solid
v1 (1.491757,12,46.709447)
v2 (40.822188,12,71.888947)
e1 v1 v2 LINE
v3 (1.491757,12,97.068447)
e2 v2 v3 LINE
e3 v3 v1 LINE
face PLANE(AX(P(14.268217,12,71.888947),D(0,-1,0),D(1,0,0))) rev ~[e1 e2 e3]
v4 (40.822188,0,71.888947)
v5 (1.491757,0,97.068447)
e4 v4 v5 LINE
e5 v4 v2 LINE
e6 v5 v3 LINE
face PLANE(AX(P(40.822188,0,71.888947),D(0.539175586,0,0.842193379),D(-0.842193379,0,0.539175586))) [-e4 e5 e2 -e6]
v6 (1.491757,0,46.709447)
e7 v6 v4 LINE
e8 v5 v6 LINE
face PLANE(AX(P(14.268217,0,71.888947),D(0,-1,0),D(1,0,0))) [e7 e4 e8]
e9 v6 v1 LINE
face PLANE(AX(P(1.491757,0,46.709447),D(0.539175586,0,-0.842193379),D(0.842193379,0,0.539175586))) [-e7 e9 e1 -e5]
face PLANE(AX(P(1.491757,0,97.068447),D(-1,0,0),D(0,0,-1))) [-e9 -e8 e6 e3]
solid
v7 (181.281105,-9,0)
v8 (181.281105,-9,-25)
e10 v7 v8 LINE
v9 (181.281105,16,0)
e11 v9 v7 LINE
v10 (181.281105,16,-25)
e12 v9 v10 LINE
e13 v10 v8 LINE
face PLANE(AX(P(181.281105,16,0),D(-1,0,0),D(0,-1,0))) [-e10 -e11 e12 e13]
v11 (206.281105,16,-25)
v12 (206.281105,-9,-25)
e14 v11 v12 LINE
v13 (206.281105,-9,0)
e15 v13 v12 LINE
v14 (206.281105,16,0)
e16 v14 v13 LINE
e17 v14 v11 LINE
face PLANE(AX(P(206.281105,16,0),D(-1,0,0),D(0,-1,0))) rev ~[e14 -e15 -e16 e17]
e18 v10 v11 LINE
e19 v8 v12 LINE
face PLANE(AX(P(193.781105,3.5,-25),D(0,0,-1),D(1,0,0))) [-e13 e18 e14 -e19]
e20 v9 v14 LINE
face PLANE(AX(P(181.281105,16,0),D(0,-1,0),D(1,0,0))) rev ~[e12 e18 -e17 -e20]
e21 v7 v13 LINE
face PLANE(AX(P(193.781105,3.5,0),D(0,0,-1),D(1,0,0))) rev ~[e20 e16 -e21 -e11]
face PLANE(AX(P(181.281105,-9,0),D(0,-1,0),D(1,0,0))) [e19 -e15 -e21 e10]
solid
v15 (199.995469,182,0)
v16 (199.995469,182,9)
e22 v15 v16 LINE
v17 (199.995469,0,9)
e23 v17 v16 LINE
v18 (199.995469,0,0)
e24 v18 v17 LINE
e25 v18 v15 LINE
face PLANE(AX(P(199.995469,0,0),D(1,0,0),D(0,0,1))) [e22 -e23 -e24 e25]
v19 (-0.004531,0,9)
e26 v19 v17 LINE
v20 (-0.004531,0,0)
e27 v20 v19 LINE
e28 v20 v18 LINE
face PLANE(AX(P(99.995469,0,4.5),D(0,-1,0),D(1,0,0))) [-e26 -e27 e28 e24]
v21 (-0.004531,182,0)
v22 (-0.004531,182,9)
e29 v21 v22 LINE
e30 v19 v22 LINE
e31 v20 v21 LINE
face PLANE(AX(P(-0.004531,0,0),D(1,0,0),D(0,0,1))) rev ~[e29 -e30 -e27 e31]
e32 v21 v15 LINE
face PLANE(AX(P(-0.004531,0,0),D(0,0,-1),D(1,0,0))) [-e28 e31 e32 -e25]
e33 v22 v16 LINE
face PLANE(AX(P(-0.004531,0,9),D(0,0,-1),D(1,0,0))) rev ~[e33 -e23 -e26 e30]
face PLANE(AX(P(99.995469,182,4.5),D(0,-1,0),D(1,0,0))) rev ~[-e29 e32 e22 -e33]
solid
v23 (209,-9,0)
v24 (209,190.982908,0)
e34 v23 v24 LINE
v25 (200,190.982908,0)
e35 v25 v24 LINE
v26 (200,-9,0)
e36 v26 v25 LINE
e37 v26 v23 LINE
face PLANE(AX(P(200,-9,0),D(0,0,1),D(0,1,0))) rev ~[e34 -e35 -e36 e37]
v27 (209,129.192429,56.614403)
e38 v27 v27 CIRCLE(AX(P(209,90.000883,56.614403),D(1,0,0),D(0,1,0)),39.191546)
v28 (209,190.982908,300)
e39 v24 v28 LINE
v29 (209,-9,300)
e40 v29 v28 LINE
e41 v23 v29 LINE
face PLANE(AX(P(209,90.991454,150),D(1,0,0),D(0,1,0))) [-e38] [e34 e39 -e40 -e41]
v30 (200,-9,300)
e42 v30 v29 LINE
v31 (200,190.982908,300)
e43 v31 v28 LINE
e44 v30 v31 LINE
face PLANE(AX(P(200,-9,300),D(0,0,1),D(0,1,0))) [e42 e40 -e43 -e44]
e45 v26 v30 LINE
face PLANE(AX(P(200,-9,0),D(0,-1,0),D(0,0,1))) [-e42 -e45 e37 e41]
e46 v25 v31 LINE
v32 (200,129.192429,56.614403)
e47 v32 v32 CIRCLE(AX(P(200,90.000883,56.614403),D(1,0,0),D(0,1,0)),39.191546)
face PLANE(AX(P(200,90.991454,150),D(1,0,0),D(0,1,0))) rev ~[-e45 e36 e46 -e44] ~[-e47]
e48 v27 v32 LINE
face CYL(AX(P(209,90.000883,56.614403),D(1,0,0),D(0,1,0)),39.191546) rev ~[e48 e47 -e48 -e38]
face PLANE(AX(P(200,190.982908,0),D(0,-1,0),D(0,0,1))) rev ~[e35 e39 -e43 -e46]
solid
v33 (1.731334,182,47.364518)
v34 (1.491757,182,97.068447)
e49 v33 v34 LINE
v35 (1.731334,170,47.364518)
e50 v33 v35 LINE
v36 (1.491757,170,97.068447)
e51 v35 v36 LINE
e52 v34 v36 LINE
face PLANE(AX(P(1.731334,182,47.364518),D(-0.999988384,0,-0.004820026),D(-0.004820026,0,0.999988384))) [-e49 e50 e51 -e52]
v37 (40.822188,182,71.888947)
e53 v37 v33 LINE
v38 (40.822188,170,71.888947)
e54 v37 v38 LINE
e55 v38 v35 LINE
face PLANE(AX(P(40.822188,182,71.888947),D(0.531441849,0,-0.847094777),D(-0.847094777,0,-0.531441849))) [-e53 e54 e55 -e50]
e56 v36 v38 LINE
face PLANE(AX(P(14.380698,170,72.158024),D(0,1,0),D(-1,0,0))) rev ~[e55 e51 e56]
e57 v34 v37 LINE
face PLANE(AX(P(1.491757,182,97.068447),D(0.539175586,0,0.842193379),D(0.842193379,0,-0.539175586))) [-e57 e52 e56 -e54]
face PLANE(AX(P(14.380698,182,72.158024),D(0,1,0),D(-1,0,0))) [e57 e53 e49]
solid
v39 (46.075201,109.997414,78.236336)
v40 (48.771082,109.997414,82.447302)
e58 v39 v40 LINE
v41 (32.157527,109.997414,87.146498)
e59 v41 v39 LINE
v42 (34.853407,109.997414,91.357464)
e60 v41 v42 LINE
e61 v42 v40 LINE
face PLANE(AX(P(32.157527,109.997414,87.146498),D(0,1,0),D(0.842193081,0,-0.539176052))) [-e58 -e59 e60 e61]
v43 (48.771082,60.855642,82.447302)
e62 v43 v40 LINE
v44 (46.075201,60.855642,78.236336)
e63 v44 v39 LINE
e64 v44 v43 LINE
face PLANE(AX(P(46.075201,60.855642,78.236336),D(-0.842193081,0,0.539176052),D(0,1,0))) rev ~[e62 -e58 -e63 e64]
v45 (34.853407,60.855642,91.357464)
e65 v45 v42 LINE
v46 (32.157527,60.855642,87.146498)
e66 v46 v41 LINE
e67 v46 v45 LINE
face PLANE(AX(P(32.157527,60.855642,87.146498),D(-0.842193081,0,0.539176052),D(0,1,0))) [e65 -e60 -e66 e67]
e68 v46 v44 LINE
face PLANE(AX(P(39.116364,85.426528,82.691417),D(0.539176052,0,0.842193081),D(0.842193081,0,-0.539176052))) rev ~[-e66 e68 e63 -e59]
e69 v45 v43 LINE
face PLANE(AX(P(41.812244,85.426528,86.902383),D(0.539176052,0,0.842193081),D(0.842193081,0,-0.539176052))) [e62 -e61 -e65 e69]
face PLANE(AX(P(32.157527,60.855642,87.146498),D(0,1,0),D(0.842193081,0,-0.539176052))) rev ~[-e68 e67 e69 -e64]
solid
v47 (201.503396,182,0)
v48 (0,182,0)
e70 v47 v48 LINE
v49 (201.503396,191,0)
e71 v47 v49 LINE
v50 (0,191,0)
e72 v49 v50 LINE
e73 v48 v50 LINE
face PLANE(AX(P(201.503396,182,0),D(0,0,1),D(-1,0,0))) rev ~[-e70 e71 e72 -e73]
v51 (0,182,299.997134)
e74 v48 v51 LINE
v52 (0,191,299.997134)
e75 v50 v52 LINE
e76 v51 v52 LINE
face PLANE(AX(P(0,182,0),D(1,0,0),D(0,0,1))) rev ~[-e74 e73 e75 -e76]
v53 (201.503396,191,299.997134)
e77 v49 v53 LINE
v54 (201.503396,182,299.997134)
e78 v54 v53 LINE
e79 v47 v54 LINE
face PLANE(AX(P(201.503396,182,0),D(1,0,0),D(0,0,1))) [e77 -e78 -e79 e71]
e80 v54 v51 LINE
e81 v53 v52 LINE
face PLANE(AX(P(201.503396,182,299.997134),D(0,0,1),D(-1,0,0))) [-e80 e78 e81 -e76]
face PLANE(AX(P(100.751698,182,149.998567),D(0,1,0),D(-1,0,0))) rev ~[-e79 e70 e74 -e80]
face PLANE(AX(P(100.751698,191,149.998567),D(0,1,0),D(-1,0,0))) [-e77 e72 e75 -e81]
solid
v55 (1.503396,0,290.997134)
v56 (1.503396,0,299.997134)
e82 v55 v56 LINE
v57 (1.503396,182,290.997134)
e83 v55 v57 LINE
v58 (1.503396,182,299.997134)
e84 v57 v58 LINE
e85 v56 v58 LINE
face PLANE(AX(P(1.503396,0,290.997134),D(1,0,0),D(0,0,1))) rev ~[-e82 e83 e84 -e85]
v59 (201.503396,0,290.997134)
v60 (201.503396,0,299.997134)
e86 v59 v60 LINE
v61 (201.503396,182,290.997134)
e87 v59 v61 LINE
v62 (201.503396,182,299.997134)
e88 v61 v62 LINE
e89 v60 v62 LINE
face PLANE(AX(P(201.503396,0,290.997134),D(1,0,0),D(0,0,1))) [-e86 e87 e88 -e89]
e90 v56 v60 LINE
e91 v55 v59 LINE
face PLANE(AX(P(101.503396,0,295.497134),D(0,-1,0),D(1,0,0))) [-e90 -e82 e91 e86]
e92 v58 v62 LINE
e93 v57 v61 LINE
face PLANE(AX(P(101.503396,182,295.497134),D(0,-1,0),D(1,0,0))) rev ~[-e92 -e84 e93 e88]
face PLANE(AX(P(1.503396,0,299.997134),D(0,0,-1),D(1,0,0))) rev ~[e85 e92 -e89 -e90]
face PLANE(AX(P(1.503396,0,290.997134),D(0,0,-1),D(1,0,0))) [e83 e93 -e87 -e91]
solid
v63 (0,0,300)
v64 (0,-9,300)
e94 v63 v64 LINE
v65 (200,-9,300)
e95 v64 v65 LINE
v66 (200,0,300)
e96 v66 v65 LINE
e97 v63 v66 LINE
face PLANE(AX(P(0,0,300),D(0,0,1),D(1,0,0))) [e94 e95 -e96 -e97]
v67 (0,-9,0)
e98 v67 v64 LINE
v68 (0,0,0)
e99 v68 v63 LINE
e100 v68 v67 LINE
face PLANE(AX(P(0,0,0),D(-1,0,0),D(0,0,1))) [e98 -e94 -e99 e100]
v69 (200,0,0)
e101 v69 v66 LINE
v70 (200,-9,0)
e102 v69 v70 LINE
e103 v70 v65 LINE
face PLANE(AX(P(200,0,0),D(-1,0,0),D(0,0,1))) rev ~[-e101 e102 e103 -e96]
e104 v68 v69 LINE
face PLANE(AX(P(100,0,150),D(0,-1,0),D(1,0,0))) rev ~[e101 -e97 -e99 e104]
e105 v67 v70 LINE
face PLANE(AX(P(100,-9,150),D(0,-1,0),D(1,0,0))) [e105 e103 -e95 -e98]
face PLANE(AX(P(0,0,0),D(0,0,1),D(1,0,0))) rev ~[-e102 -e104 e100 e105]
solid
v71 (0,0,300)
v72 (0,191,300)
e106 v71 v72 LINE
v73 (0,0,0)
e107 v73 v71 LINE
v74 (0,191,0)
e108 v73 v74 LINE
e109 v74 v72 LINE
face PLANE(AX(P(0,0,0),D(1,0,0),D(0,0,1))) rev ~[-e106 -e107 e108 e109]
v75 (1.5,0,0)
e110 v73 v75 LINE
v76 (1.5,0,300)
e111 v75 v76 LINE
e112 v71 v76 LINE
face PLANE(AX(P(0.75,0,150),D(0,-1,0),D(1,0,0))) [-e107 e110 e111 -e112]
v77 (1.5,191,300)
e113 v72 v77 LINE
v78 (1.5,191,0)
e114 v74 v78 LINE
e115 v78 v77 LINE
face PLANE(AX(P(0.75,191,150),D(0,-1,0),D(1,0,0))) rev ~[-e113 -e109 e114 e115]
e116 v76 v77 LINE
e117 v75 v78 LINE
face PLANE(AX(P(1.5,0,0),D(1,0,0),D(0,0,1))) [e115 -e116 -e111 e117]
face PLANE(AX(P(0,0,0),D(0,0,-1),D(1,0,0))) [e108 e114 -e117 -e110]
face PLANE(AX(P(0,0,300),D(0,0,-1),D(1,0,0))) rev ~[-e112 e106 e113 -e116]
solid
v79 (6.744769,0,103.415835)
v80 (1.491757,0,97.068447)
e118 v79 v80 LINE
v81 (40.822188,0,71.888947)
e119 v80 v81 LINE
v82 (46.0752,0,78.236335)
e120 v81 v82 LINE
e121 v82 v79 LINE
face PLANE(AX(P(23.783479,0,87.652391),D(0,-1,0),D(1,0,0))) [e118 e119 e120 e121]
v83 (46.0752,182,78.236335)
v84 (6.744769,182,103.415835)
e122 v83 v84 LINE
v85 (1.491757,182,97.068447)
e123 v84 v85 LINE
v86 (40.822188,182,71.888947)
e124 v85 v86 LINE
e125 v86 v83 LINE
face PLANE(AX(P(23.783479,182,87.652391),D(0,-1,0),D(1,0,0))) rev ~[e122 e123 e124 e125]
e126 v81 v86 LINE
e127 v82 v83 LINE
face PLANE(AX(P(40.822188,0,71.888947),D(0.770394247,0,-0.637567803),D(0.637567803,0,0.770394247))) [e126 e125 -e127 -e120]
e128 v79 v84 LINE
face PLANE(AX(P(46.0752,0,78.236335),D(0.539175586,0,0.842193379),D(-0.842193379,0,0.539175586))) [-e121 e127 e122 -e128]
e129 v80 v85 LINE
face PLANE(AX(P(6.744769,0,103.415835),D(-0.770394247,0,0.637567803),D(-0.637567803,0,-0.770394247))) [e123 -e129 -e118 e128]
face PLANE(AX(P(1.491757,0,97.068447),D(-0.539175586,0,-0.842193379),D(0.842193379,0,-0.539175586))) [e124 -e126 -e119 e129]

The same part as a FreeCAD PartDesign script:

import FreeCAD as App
import Part
import Sketcher

V = App.Vector
Q = App.Units.Quantity


def add_polygon(sketch, points):
    """Adds a closed chain of lines whose ends are joined by coincident constraints."""
    first, n = sketch.GeometryCount, len(points)
    for a, b in zip(points, points[1:] + points[:1]):
        sketch.addGeometry(Part.LineSegment(App.Vector(*a, 0), App.Vector(*b, 0)), False)
    for i in range(n):
        sketch.addConstraint(Sketcher.Constraint("Coincident", first + i, 2, first + (i + 1) % n, 1))

doc = App.newDocument("Part")
body = doc.addObject("PartDesign::Body", "Body")

# Sketch on XZ plane
sketch1 = body.newObject("Sketcher::SketchObject", "Sketch")
sketch1.AttachmentSupport = (doc.getObject("XZ_Plane"), [""])
sketch1.MapMode = "FlatFace"
add_polygon(sketch1, [(0, 300), (0, 0), (200, 0), (200, 300)])  # lines 0-3
sketch1.addConstraint([
    Sketcher.Constraint("Vertical", 0),
    Sketcher.Constraint("Horizontal", 1),
    Sketcher.Constraint("Vertical", 2),
    Sketcher.Constraint("Horizontal", 3),
    Sketcher.Constraint("Coincident", 0, 2, -1, 1),
    Sketcher.Constraint("DistanceX", 1, 1, 1, 2, Q("200 mm")),
    Sketcher.Constraint("DistanceY", 0, 2, 0, 1, Q("300 mm")),
])
pad1 = body.newObject("PartDesign::Pad", "Pad")
pad1.Profile = sketch1
pad1.Length = 9
body2 = doc.addObject("PartDesign::Body", "Body001")

# Sketch on XZ plane
sketch2 = body2.newObject("Sketcher::SketchObject", "Sketch001")
sketch2.AttachmentSupport = (doc.getObject("XZ_Plane001"), [""])
sketch2.MapMode = "FlatFace"
add_polygon(sketch2, [(0, 300), (0, 0), (1.5, 0), (1.5, 300)])  # lines 0-3
sketch2.addConstraint([
    Sketcher.Constraint("Vertical", 0),
    Sketcher.Constraint("Horizontal", 1),
    Sketcher.Constraint("Vertical", 2),
    Sketcher.Constraint("Horizontal", 3),
    Sketcher.Constraint("Coincident", 0, 2, -1, 1),
    Sketcher.Constraint("DistanceY", 0, 2, 0, 1, Q("300 mm")),
    Sketcher.Constraint("DistanceX", 1, 1, 1, 2, Q("1.5 mm")),
])
pad2 = body2.newObject("PartDesign::Pad", "Pad001")
pad2.Profile = sketch2
pad2.Length = 191
pad2.Reversed = True
body3 = doc.addObject("PartDesign::Body", "Body002")

# Sketch on XZ plane
sketch3 = body3.newObject("Sketcher::SketchObject", "Sketch002")
sketch3.AttachmentSupport = (doc.getObject("XZ_Plane002"), [""])
sketch3.MapMode = "FlatFace"
add_polygon(sketch3, [(41, 72), (1, 97), (1, 47)])  # lines 0-2
sketch3.addConstraint([
    Sketcher.Constraint("Vertical", 1),
    Sketcher.Constraint("Equal", 0, 2),
    Sketcher.Constraint("Distance", 0, Q("46.7 mm")),
    Sketcher.Constraint("DistanceY", 1, 2, 1, 1, Q("50.359 mm")),
    Sketcher.Constraint("DistanceX", -1, 1, 0, 2, Q("1.491757 mm")),
    Sketcher.Constraint("DistanceY", -1, 1, 0, 2, Q("97.068447 mm")),
])
pad3 = body3.newObject("PartDesign::Pad", "Pad002")
pad3.Profile = sketch3
pad3.Length = 12
pad3.Reversed = True
body4 = doc.addObject("PartDesign::Body", "Body003")

# Sketch on XZ plane
sketch4 = body4.newObject("Sketcher::SketchObject", "Sketch003")
sketch4.AttachmentSupport = (doc.getObject("XZ_Plane003"), [""])
sketch4.MapMode = "FlatFace"
add_polygon(sketch4, [(7, 103), (1, 97), (41, 72), (46, 78)])  # lines 0-3
sketch4.addConstraint([
    Sketcher.Constraint("Parallel", 0, 2),
    Sketcher.Constraint("Parallel", 1, 3),
    Sketcher.Constraint("Distance", 1, Q("46.7 mm")),
    Sketcher.Constraint("DistanceX", -1, 1, 2, 2, Q("46.0752 mm")),
    Sketcher.Constraint("DistanceY", 1, 2, 0, 2, Q("25.1795 mm")),
    Sketcher.Constraint("DistanceX", 3, 2, 1, 2, Q("34.077419 mm")),
    Sketcher.Constraint("Distance", 0, Q("8.239143 mm")),
    Sketcher.Constraint("DistanceY", -1, 1, 0, 2, Q("97.068447 mm")),
])
pad4 = body4.newObject("PartDesign::Pad", "Pad003")
pad4.Profile = sketch4
pad4.Length = 182
pad4.Reversed = True
body5 = doc.addObject("PartDesign::Body", "Body004")

# Sketch on XZ plane
sketch5 = body5.newObject("Sketcher::SketchObject", "Sketch004")
sketch5.AttachmentSupport = (doc.getObject("XZ_Plane004"), [""])
sketch5.MapMode = "FlatFace"
sketch5.AttachmentOffset = App.Placement(V(0, 0, -182), App.Rotation())
add_polygon(sketch5, [(1, 97), (41, 72), (2, 47)])  # lines 0-2
sketch5.addConstraint([
    Sketcher.Constraint("Distance", 0, Q("46.7 mm")),
    Sketcher.Constraint("DistanceY", 0, 2, 2, 2, Q("25.1795 mm")),
    Sketcher.Constraint("DistanceY", 1, 2, 0, 2, Q("24.524429 mm")),
    Sketcher.Constraint("Distance", 1, Q("46.146966 mm")),
    Sketcher.Constraint("DistanceX", -1, 1, 0, 2, Q("40.822188 mm")),
    Sketcher.Constraint("DistanceY", -1, 1, 0, 2, Q("71.888947 mm")),
])
pad5 = body5.newObject("PartDesign::Pad", "Pad004")
pad5.Profile = sketch5
pad5.Length = 12
body6 = doc.addObject("PartDesign::Body", "Body005")

# Sketch on an angled plane
sketch6 = body6.newObject("Sketcher::SketchObject", "Sketch005")
sketch6.Placement = App.Placement(V(48.920882, 0, 76.414518), App.Rotation(V(0.842193081, 0, -0.539176052), V(0, 1.000000001, 0), V(0.539176052, 0, 0.842193081), "ZXY"))
add_polygon(sketch6, [(-20, 110), (-20, 61), (-3, 61), (-3, 110)])  # lines 0-3
sketch6.addConstraint([
    Sketcher.Constraint("Vertical", 0),
    Sketcher.Constraint("Horizontal", 1),
    Sketcher.Constraint("Vertical", 2),
    Sketcher.Constraint("Horizontal", 3),
    Sketcher.Constraint("DistanceX", 1, 1, 1, 2, Q("16.525515 mm")),
    Sketcher.Constraint("DistanceY", 0, 2, 0, 1, Q("49.141772 mm")),
    Sketcher.Constraint("DistanceX", 0, 2, -1, 1, Q("19.904409 mm")),
    Sketcher.Constraint("DistanceY", -1, 1, 0, 2, Q("60.855642 mm")),
])
pad6 = body6.newObject("PartDesign::Pad", "Pad005")
pad6.Profile = sketch6
pad6.Length = 5
body7 = doc.addObject("PartDesign::Body", "Body006")

# Sketch on XZ plane
sketch7 = body7.newObject("Sketcher::SketchObject", "Sketch006")
sketch7.AttachmentSupport = (doc.getObject("XZ_Plane006"), [""])
sketch7.MapMode = "FlatFace"
add_polygon(sketch7, [(2, 300), (2, 291), (202, 291), (202, 300)])  # lines 0-3
sketch7.addConstraint([
    Sketcher.Constraint("Vertical", 0),
    Sketcher.Constraint("Horizontal", 1),
    Sketcher.Constraint("Vertical", 2),
    Sketcher.Constraint("Horizontal", 3),
    Sketcher.Constraint("DistanceX", 1, 1, 1, 2, Q("200 mm")),
    Sketcher.Constraint("DistanceY", 0, 2, 0, 1, Q("9 mm")),
    Sketcher.Constraint("DistanceX", -1, 1, 0, 2, Q("1.503396 mm")),
    Sketcher.Constraint("DistanceY", -1, 1, 0, 2, Q("290.997134 mm")),
])
pad7 = body7.newObject("PartDesign::Pad", "Pad006")
pad7.Profile = sketch7
pad7.Length = 182
pad7.Reversed = True
body8 = doc.addObject("PartDesign::Body", "Body007")

# Sketch on XZ plane
sketch8 = body8.newObject("Sketcher::SketchObject", "Sketch007")
sketch8.AttachmentSupport = (doc.getObject("XZ_Plane007"), [""])
sketch8.MapMode = "FlatFace"
add_polygon(sketch8, [(0, 9), (0, 0), (200, 0), (200, 9)])  # lines 0-3
sketch8.addConstraint([
    Sketcher.Constraint("Vertical", 0),
    Sketcher.Constraint("Horizontal", 1),
    Sketcher.Constraint("Vertical", 2),
    Sketcher.Constraint("Horizontal", 3),
    Sketcher.Constraint("PointOnObject", 0, 2, -1),
    Sketcher.Constraint("DistanceX", 1, 1, 1, 2, Q("200 mm")),
    Sketcher.Constraint("DistanceY", 0, 2, 0, 1, Q("9 mm")),
    Sketcher.Constraint("DistanceX", 0, 2, -1, 1, Q("0.004531 mm")),
])
pad8 = body8.newObject("PartDesign::Pad", "Pad007")
pad8.Profile = sketch8
pad8.Length = 182
pad8.Reversed = True
body9 = doc.addObject("PartDesign::Body", "Body008")

# Sketch on XZ plane
sketch9 = body9.newObject("Sketcher::SketchObject", "Sketch008")
sketch9.AttachmentSupport = (doc.getObject("XZ_Plane008"), [""])
sketch9.MapMode = "FlatFace"
sketch9.AttachmentOffset = App.Placement(V(0, 0, -182), App.Rotation())
add_polygon(sketch9, [(202, 300), (202, 0), (0, 0), (0, 300)])  # lines 0-3
sketch9.addConstraint([
    Sketcher.Constraint("Vertical", 0),
    Sketcher.Constraint("Horizontal", 1),
    Sketcher.Constraint("Vertical", 2),
    Sketcher.Constraint("Horizontal", 3),
    Sketcher.Constraint("Coincident", 1, 2, -1, 1),
    Sketcher.Constraint("DistanceX", 1, 2, 1, 1, Q("201.503396 mm")),
    Sketcher.Constraint("DistanceY", 0, 2, 0, 1, Q("299.997134 mm")),
])
pad9 = body9.newObject("PartDesign::Pad", "Pad008")
pad9.Profile = sketch9
pad9.Length = 9
pad9.Reversed = True
body10 = doc.addObject("PartDesign::Body", "Body009")

# Sketch on YZ plane
sketch10 = body10.newObject("Sketcher::SketchObject", "Sketch009")
sketch10.AttachmentSupport = (doc.getObject("YZ_Plane009"), [""])
sketch10.MapMode = "FlatFace"
sketch10.AttachmentOffset = App.Placement(V(0, 0, 200), App.Rotation())
add_polygon(sketch10, [(-9, 300), (-9, 0), (191, 0), (191, 300)])  # lines 0-3
sketch10.addConstraint([
    Sketcher.Constraint("Vertical", 0),
    Sketcher.Constraint("Horizontal", 1),
    Sketcher.Constraint("Vertical", 2),
    Sketcher.Constraint("Horizontal", 3),
    Sketcher.Constraint("PointOnObject", 0, 2, -1),
    Sketcher.Constraint("DistanceY", 0, 2, 0, 1, Q("300 mm")),
    Sketcher.Constraint("DistanceX", 0, 2, -1, 1, Q("9 mm")),
    Sketcher.Constraint("DistanceX", 1, 1, 1, 2, Q("199.982908 mm")),
])
pad10 = body10.newObject("PartDesign::Pad", "Pad009")
pad10.Profile = sketch10
pad10.Length = 9

# Sketch on YZ plane
sketch11 = body10.newObject("Sketcher::SketchObject", "Sketch010")
sketch11.AttachmentSupport = (doc.getObject("YZ_Plane009"), [""])
sketch11.MapMode = "FlatFace"
sketch11.AttachmentOffset = App.Placement(V(0, 0, 209), App.Rotation())
sketch11.addGeometry(Part.Circle(V(90, 57, 0), V(0, 0, 1), 39), False)
sketch11.addConstraint([
    Sketcher.Constraint("Diameter", 0, Q("78.383092 mm")),
    Sketcher.Constraint("DistanceX", -1, 1, 0, 3, Q("90.000883 mm")),
    Sketcher.Constraint("DistanceY", -1, 1, 0, 3, Q("56.614403 mm")),
])
pocket1 = body10.newObject("PartDesign::Pocket", "Pocket")
pocket1.Profile = sketch11
pocket1.Length = 30
body11 = doc.addObject("PartDesign::Body", "Body010")

# Sketch on XY plane
sketch12 = body11.newObject("Sketcher::SketchObject", "Sketch011")
sketch12.AttachmentSupport = (doc.getObject("XY_Plane010"), [""])
sketch12.MapMode = "FlatFace"
add_polygon(sketch12, [(181, -9), (181, 16), (206, 16), (206, -9)])  # lines 0-3
sketch12.addConstraint([
    Sketcher.Constraint("Vertical", 0),
    Sketcher.Constraint("Horizontal", 1),
    Sketcher.Constraint("Vertical", 2),
    Sketcher.Constraint("Horizontal", 3),
    Sketcher.Constraint("Equal", 3, 0),
    Sketcher.Constraint("DistanceX", 1, 1, 1, 2, Q("25 mm")),
    Sketcher.Constraint("DistanceY", -1, 1, 0, 2, Q("16 mm")),
    Sketcher.Constraint("DistanceX", -1, 1, 0, 2, Q("181.281105 mm")),
])
pad11 = body11.newObject("PartDesign::Pad", "Pad010")
pad11.Profile = sketch12
pad11.Length = 25
pad11.Reversed = True

doc.recompute()
